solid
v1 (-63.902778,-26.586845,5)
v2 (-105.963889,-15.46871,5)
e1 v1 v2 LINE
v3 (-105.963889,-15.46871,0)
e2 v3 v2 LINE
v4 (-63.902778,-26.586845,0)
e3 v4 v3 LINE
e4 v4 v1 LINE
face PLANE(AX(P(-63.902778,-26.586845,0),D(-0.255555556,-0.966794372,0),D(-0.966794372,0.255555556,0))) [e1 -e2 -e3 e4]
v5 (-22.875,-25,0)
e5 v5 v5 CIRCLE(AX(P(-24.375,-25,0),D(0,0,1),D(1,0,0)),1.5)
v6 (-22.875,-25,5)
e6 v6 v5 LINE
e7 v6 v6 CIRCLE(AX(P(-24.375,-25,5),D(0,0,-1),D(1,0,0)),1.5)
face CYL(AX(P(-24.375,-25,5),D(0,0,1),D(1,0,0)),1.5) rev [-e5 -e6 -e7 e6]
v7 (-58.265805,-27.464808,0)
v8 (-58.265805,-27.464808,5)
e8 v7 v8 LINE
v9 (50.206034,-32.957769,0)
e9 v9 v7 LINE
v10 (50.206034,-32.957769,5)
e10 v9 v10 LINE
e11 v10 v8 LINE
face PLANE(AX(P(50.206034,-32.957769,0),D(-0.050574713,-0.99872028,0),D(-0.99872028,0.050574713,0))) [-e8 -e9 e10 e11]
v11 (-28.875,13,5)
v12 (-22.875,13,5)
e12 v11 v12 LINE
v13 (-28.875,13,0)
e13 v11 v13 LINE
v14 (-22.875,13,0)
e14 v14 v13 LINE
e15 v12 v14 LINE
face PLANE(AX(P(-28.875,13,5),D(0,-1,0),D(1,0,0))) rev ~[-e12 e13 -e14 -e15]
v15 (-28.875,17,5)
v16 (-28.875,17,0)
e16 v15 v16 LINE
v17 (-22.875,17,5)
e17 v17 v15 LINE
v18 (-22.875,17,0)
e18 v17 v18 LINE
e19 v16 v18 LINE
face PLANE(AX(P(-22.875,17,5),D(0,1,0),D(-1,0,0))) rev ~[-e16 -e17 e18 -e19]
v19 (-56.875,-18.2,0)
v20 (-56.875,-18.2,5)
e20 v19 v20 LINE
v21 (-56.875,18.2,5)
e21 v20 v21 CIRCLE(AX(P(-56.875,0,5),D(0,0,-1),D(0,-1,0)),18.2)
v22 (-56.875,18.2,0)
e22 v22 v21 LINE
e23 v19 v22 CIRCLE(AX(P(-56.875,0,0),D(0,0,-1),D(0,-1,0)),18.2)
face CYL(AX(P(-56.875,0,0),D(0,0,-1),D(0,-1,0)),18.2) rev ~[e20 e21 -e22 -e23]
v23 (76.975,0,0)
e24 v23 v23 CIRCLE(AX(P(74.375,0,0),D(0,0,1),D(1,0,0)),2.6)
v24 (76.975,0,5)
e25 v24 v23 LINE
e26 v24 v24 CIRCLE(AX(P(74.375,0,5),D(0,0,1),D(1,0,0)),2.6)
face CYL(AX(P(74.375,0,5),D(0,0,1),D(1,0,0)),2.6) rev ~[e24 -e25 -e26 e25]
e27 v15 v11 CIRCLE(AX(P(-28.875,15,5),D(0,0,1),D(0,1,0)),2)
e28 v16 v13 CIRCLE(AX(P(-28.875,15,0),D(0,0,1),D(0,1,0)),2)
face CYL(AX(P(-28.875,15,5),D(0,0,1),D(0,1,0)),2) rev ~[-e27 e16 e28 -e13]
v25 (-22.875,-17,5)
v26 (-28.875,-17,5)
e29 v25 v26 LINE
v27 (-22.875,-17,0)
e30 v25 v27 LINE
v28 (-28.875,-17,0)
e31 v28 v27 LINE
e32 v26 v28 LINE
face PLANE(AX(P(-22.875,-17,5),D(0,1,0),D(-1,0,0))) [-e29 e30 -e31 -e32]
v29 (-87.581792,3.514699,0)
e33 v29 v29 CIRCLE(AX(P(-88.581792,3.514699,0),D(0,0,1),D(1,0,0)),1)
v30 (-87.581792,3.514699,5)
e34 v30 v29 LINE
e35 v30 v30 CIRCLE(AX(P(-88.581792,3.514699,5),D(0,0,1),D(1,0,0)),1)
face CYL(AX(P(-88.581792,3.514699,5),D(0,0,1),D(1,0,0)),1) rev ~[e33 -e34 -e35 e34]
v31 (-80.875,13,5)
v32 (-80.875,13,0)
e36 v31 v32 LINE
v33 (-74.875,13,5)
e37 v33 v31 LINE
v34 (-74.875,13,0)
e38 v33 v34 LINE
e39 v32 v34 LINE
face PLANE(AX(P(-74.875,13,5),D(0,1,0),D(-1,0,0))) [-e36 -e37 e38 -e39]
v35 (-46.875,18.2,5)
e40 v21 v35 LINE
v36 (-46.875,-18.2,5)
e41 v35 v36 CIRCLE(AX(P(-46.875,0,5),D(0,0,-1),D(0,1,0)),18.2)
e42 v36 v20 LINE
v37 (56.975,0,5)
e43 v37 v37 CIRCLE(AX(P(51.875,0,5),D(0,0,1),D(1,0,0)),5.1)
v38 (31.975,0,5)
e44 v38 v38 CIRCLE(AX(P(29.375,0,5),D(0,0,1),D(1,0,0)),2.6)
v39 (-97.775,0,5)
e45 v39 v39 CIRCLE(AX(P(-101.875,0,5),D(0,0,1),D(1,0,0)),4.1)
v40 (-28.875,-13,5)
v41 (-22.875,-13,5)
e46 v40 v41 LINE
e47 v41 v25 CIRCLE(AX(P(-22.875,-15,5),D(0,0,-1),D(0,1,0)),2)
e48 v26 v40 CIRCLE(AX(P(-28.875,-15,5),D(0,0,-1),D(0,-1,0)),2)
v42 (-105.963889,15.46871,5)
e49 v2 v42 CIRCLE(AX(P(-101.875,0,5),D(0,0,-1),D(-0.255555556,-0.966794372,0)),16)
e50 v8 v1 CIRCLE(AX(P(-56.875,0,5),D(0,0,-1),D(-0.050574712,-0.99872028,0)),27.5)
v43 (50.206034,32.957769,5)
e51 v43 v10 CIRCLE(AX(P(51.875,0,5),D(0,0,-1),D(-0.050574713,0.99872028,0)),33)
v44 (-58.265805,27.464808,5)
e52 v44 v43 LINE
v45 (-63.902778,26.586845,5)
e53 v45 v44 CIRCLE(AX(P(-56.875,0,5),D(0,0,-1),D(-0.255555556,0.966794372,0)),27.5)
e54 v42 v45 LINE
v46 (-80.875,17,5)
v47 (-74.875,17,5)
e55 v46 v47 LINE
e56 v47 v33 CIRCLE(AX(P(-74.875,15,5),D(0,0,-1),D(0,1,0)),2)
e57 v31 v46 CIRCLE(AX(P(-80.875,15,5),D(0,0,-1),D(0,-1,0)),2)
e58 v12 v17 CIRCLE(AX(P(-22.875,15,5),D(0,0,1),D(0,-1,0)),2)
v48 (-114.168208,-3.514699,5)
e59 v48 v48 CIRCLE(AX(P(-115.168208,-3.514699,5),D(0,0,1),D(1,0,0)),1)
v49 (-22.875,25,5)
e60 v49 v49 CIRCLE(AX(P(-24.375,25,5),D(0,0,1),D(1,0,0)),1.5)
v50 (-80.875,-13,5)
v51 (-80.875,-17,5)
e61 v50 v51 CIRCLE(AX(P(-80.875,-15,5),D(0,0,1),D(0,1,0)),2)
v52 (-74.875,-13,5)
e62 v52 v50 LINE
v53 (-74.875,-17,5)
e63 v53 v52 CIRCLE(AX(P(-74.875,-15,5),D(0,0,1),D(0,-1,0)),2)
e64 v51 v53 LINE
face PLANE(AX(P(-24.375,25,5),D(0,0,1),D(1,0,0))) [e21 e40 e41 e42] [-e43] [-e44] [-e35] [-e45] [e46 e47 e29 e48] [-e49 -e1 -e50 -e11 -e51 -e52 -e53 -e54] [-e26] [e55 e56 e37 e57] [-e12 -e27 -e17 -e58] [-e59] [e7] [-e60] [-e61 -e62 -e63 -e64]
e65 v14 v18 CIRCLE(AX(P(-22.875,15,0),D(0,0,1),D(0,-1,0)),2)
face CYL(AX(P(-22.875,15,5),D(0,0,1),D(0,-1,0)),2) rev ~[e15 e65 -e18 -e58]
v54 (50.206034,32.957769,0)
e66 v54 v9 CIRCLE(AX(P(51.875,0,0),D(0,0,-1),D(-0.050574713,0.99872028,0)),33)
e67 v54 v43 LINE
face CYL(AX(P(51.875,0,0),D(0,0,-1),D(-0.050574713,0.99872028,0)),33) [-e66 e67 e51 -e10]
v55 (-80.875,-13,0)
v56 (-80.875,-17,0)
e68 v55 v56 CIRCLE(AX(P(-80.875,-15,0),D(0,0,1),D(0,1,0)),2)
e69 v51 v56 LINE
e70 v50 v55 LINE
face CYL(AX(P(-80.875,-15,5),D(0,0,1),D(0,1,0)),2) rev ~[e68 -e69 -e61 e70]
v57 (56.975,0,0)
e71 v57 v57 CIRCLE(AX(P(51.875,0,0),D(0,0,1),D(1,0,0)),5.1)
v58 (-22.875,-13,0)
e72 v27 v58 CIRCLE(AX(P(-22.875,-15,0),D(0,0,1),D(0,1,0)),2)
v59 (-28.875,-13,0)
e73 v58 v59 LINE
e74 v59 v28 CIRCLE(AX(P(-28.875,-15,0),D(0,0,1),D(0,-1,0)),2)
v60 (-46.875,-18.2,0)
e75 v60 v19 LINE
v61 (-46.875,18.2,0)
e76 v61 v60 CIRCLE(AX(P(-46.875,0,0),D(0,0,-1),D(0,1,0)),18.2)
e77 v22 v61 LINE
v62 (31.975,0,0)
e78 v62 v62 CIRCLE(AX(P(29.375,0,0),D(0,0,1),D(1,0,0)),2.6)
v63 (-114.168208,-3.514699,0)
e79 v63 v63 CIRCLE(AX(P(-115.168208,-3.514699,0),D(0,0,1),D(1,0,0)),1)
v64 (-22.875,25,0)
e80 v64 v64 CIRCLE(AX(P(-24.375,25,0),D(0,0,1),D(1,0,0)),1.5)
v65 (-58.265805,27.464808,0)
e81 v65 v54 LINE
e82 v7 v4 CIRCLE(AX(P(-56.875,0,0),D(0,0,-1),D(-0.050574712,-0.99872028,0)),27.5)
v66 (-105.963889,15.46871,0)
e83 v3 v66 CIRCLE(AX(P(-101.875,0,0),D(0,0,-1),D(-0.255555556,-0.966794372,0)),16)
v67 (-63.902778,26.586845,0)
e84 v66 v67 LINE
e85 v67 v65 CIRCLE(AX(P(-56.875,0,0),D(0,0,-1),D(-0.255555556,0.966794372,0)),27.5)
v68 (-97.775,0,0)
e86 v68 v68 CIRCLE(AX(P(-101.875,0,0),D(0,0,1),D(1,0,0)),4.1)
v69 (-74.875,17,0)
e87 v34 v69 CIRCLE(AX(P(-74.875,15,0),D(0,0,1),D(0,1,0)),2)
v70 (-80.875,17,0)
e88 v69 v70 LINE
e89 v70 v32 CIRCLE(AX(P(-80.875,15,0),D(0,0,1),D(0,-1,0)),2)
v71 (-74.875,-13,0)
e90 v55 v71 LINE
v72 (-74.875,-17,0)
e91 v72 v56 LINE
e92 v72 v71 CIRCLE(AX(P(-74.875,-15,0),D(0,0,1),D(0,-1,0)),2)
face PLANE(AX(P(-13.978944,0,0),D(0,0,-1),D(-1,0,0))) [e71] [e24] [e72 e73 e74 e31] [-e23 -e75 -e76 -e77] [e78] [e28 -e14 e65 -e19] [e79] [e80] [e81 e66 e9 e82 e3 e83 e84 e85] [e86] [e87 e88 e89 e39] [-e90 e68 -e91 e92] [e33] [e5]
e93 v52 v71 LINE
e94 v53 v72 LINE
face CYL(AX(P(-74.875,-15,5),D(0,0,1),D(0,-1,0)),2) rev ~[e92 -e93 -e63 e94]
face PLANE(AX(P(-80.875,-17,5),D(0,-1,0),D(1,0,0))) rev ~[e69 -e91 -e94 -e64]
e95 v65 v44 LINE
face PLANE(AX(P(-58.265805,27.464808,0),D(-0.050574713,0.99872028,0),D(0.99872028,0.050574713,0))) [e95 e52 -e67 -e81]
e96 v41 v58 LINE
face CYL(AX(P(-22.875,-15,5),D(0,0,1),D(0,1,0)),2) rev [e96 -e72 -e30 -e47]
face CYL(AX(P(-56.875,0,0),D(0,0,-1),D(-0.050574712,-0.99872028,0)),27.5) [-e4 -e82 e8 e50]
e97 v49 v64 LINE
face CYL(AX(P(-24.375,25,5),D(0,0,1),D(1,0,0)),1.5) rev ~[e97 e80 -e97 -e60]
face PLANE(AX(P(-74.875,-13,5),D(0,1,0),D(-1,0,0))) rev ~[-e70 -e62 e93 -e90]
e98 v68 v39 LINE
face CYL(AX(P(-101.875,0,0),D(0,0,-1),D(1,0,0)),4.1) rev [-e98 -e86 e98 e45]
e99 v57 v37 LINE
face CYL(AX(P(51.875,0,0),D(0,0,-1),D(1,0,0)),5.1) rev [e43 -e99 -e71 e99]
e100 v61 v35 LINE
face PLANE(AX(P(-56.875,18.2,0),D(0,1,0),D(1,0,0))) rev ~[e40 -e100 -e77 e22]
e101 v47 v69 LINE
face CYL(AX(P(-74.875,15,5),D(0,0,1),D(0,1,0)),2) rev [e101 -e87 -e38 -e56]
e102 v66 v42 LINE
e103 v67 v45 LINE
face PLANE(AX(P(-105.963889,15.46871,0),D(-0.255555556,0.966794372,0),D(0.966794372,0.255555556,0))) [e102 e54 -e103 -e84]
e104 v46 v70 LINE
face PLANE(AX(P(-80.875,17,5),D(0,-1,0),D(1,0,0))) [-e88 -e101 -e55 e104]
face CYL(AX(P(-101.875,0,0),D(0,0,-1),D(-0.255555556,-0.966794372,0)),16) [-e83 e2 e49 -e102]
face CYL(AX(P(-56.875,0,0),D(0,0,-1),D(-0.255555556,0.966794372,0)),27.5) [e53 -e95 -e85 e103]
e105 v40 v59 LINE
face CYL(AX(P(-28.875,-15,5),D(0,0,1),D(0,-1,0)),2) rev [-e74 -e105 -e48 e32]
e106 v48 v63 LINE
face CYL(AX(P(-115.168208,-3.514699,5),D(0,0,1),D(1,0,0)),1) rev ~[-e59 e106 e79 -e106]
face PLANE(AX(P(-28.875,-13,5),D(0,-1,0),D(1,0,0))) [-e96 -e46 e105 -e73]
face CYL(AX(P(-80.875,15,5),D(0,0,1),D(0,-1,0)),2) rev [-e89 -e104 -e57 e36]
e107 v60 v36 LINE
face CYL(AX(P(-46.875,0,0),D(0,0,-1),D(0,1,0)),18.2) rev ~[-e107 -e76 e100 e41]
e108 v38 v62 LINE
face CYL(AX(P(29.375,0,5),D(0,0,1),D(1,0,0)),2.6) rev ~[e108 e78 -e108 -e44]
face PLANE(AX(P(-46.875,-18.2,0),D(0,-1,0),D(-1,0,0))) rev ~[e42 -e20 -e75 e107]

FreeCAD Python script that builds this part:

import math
import FreeCAD as App
import Part
import Sketcher
from FreeCAD import Vector
Q = App.Units.Quantity


def add_polygon(sketch, points):
    """Adds a closed chain of lines whose ends are joined by coincident constraints."""
    first, n = sketch.GeometryCount, len(points)
    for a, b in zip(points, points[1:] + points[:1]):
        sketch.addGeometry(Part.LineSegment(App.Vector(*a, 0), App.Vector(*b, 0)), False)
    for i in range(n):
        sketch.addConstraint(Sketcher.Constraint("Coincident", first + i, 2, first + (i + 1) % n, 1))

doc = App.newDocument("Part")
body = doc.addObject("PartDesign::Body", "Body")

sketch1 = body.newObject("Sketcher::SketchObject", "Sketch")
sketch1.AttachmentSupport = (doc.getObject("XY_Plane"), [""])
sketch1.MapMode = "FlatFace"
sketch1.addGeometry([
    Part.LineSegment(Vector(50.2, 33, 0), Vector(-58.3, 27.5, 0)),
    Part.ArcOfCircle(Part.Circle(Vector(-56.9, 0, 0), Vector(0, 0, 1), 27.5), math.radians(92.9), math.radians(104.81)),
    Part.LineSegment(Vector(-63.9, 26.6, 0), Vector(-106, 15.5, 0)),
    Part.ArcOfCircle(Part.Circle(Vector(-101.9, 0, 0), Vector(0, 0, 1), 16), math.radians(105), math.radians(255)),
    Part.LineSegment(Vector(-106, -15.5, 0), Vector(-63.9, -26.6, 0)),
    Part.ArcOfCircle(Part.Circle(Vector(-56.9, 0, 0), Vector(0, 0, 1), 27.5), math.radians(-104.81), math.radians(-92.9)),
    Part.LineSegment(Vector(-58.3, -27.5, 0), Vector(50.2, -33, 0)),
    Part.ArcOfCircle(Part.Circle(Vector(51.9, 0, 0), Vector(0, 0, 1), 33), math.radians(-93), math.radians(93)),
    Part.Circle(Vector(51.9, 0, 0), Vector(0, 0, 1), 5.1),
    Part.LineSegment(Vector(-46.9, -18.2, 0), Vector(-56.9, -18.2, 0)),
    Part.ArcOfCircle(Part.Circle(Vector(-56.9, 0, 0), Vector(0, 0, 1), 18.2), math.radians(90), math.radians(270)),
    Part.LineSegment(Vector(-56.9, 18.2, 0), Vector(-46.9, 18.2, 0)),
    Part.ArcOfCircle(Part.Circle(Vector(-46.9, 0, 0), Vector(0, 0, 1), 18.2), math.radians(-90), math.radians(90)),
    Part.Circle(Vector(-101.9, 0, 0), Vector(0, 0, 1), 4.1),
], False)
sketch1.addConstraint([
    Sketcher.Constraint("Tangent", 0, 2, 1, 1),
    Sketcher.Constraint("Tangent", 1, 2, 2, 1),
    Sketcher.Constraint("Tangent", 2, 2, 3, 1),
    Sketcher.Constraint("Tangent", 3, 2, 4, 1),
    Sketcher.Constraint("Tangent", 4, 2, 5, 1),
    Sketcher.Constraint("Tangent", 5, 2, 6, 1),
    Sketcher.Constraint("Tangent", 6, 2, 7, 1),
    Sketcher.Constraint("Tangent", 7, 2, 0, 1),
    Sketcher.Constraint("Tangent", 9, 2, 10, 2),
    Sketcher.Constraint("Tangent", 10, 1, 11, 1),
    Sketcher.Constraint("Tangent", 11, 2, 12, 2),
    Sketcher.Constraint("Tangent", 12, 1, 9, 1),
    Sketcher.Constraint("Horizontal", 9),
    Sketcher.Constraint("Horizontal", 11),
    Sketcher.Constraint("Coincident", 5, 3, 1, 3),
    Sketcher.Constraint("Coincident", 8, 3, 7, 3),
    Sketcher.Constraint("Coincident", 10, 3, 1, 3),
    Sketcher.Constraint("Coincident", 13, 3, 3, 3),
    Sketcher.Constraint("Equal", 1, 5),
    Sketcher.Constraint("Symmetric", 2, 2, 3, 2, -1),
    Sketcher.Constraint("PointOnObject", 7, 3, -1),
    Sketcher.Constraint("Radius", 3, Q("16 mm")),
    Sketcher.Constraint("Radius", 7, Q("33 mm")),
    Sketcher.Constraint("Diameter", 8, Q("10.2 mm")),
    Sketcher.Constraint("Diameter", 13, Q("8.2 mm")),
    Sketcher.Constraint("Radius", 1, Q("27.5 mm")),
    Sketcher.Constraint("Radius", 10, Q("18.2 mm")),
    Sketcher.Constraint("DistanceX", 9, 2, 9, 1, Q("10 mm")),
    Sketcher.Constraint("DistanceX", 3, 3, 1, 3, Q("45 mm")),
    Sketcher.Constraint("DistanceX", 1, 3, 7, 3, Q("108.75 mm")),
    Sketcher.Constraint("DistanceX", 1, 3, -1, 1, Q("56.875 mm")),
])
pad1 = body.newObject("PartDesign::Pad", "Pad")
pad1.Profile = sketch1
pad1.Length = 5

sketch2 = body.newObject("Sketcher::SketchObject", "Sketch001")
sketch2.AttachmentSupport = (doc.getObject("XY_Plane"), [""])
sketch2.MapMode = "FlatFace"
sketch2.AttachmentOffset = App.Placement(Vector(0, 0, 5), App.Rotation())
sketch2.addGeometry([
    Part.Circle(Vector(29.4, 0, 0), Vector(0, 0, 1), 2.6),
    Part.Circle(Vector(74.4, 0, 0), Vector(0, 0, 1), 2.6),
], False)
sketch2.addConstraint([
    Sketcher.Constraint("Equal", 0, 1),
    Sketcher.Constraint("PointOnObject", 0, 3, -1),
    Sketcher.Constraint("PointOnObject", 1, 3, -1),
    Sketcher.Constraint("Diameter", 0, Q("5.2 mm")),
    Sketcher.Constraint("DistanceX", 0, 3, 1, 3, Q("45 mm")),
    Sketcher.Constraint("DistanceX", -1, 1, 0, 3, Q("29.375 mm")),
])
pocket1 = body.newObject("PartDesign::Pocket", "Pocket")
pocket1.Profile = sketch2
pocket1.Length = 7

sketch3 = body.newObject("Sketcher::SketchObject", "Sketch002")
sketch3.AttachmentSupport = (doc.getObject("XY_Plane"), [""])
sketch3.MapMode = "FlatFace"
sketch3.AttachmentOffset = App.Placement(Vector(0, 0, 5), App.Rotation())
add_polygon(sketch3, [(-29, 25), (-26.7, 21), (-22.1, 21), (-19.8, 25), (-22.1, 29), (-26.7, 29)])
add_polygon(sketch3, [(-27.2, 25), (-25.8, 27.4), (-23, 27.4), (-21.6, 25), (-23, 22.6), (-25.8, 22.6)])
sketch3.addConstraint([
    Sketcher.Constraint("Horizontal", 1),
    Sketcher.Constraint("Horizontal", 4),
    Sketcher.Constraint("Horizontal", 7),
    Sketcher.Constraint("Horizontal", 10),
    Sketcher.Constraint("Parallel", 0, 3),
    Sketcher.Constraint("Parallel", 2, 5),
    Sketcher.Constraint("Parallel", 5, 6),
    Sketcher.Constraint("Parallel", 3, 8),
    Sketcher.Constraint("Parallel", 6, 9),
    Sketcher.Constraint("Parallel", 8, 11),
    Sketcher.Constraint("Horizontal", 2, 2, 5, 2),
    Sketcher.Constraint("Horizontal", 5, 2, 8, 2),
    Sketcher.Constraint("Horizontal", 8, 2, 11, 2),
    Sketcher.Constraint("Vertical", 1, 2, 3, 2),
    Sketcher.Constraint("Vertical", 0, 2, 4, 2),
    Sketcher.Constraint("Vertical", 7, 2, 9, 2),
    Sketcher.Constraint("Angle", 0, Q("-60 deg")),
    Sketcher.Constraint("DistanceX", 7, 1, 7, 2, Q("2.8 mm")),
    Sketcher.Constraint("DistanceY", -1, 1, 0, 2, Q("21 mm")),
    Sketcher.Constraint("DistanceY", -1, 1, 2, 2, Q("25 mm")),
    Sketcher.Constraint("Distance", 6, Q("2.8 mm")),
    Sketcher.Constraint("DistanceX", 6, 2, -1, 1, Q("25.775 mm")),
    Sketcher.Constraint("DistanceX", 0, 2, -1, 1, Q("26.684401 mm")),
    Sketcher.Constraint("DistanceX", 1, 2, -1, 1, Q("22.065599 mm")),
])
pad2 = body.newObject("PartDesign::Pad", "Pad001")
pad2.Profile = sketch3
pad2.Length = 8
pad2.Reversed = True

sketch4 = body.newObject("Sketcher::SketchObject", "Sketch003")
sketch4.AttachmentSupport = (doc.getObject("XY_Plane"), [""])
sketch4.MapMode = "FlatFace"
sketch4.AttachmentOffset = App.Placement(Vector(0, 0, 5), App.Rotation())
sketch4.addGeometry(Part.Circle(Vector(-24.4, 25, 0), Vector(0, 0, 1), 1.5), False)
sketch4.addConstraint([
    Sketcher.Constraint("Diameter", 0, Q("3 mm")),
    Sketcher.Constraint("DistanceY", -1, 1, 0, 3, Q("25 mm")),
    Sketcher.Constraint("DistanceX", 0, 3, -1, 1, Q("24.375 mm")),
])
pocket2 = body.newObject("PartDesign::Pocket", "Pocket001")
pocket2.Profile = sketch4
pocket2.Length = 7
doc.recompute()

mirrored = body.newObject("PartDesign::Mirrored", "Mirrored")
mirrored.Originals = [pocket2]
mirrored.MirrorPlane = (doc.getObject("XZ_Plane"), [""])
body.Tip = mirrored

sketch5 = body.newObject("Sketcher::SketchObject", "Sketch004")
sketch5.AttachmentSupport = (doc.getObject("XY_Plane"), [""])
sketch5.MapMode = "FlatFace"
sketch5.AttachmentOffset = App.Placement(Vector(0, 0, 5), App.Rotation())
sketch5.addGeometry([
    Part.LineSegment(Vector(-74.9, 17, 0), Vector(-80.9, 17, 0)),
    Part.ArcOfCircle(Part.Circle(Vector(-80.9, 15, 0), Vector(0, 0, 1), 2), math.radians(90), math.radians(270)),
    Part.LineSegment(Vector(-80.9, 13, 0), Vector(-74.9, 13, 0)),
    Part.ArcOfCircle(Part.Circle(Vector(-74.9, 15, 0), Vector(0, 0, 1), 2), math.radians(-90), math.radians(90)),
    Part.LineSegment(Vector(-22.9, 17, 0), Vector(-28.9, 17, 0)),
    Part.ArcOfCircle(Part.Circle(Vector(-28.9, 15, 0), Vector(0, 0, 1), 2), math.radians(90), math.radians(270)),
    Part.LineSegment(Vector(-28.9, 13, 0), Vector(-22.9, 13, 0)),
    Part.ArcOfCircle(Part.Circle(Vector(-22.9, 15, 0), Vector(0, 0, 1), 2), math.radians(-90), math.radians(90)),
    Part.LineSegment(Vector(-28.9, -17, 0), Vector(-22.9, -17, 0)),
    Part.ArcOfCircle(Part.Circle(Vector(-22.9, -15, 0), Vector(0, 0, 1), 2), math.radians(-90), math.radians(90)),
    Part.LineSegment(Vector(-22.9, -13, 0), Vector(-28.9, -13, 0)),
    Part.ArcOfCircle(Part.Circle(Vector(-28.9, -15, 0), Vector(0, 0, 1), 2), math.radians(90), math.radians(270)),
    Part.LineSegment(Vector(-80.9, -17, 0), Vector(-74.9, -17, 0)),
    Part.ArcOfCircle(Part.Circle(Vector(-74.9, -15, 0), Vector(0, 0, 1), 2), math.radians(-90), math.radians(90)),
    Part.LineSegment(Vector(-74.9, -13, 0), Vector(-80.9, -13, 0)),
    Part.ArcOfCircle(Part.Circle(Vector(-80.9, -15, 0), Vector(0, 0, 1), 2), math.radians(90), math.radians(270)),
], False)
sketch5.addConstraint([
    Sketcher.Constraint("Tangent", 0, 2, 1, 1),
    Sketcher.Constraint("Tangent", 1, 2, 2, 1),
    Sketcher.Constraint("Tangent", 2, 2, 3, 1),
    Sketcher.Constraint("Tangent", 3, 2, 0, 1),
    Sketcher.Constraint("Tangent", 4, 2, 5, 1),
    Sketcher.Constraint("Tangent", 5, 2, 6, 1),
    Sketcher.Constraint("Tangent", 6, 2, 7, 1),
    Sketcher.Constraint("Tangent", 7, 2, 4, 1),
    Sketcher.Constraint("Tangent", 8, 2, 9, 1),
    Sketcher.Constraint("Tangent", 9, 2, 10, 1),
    Sketcher.Constraint("Tangent", 10, 2, 11, 1),
    Sketcher.Constraint("Tangent", 11, 2, 8, 1),
    Sketcher.Constraint("Tangent", 12, 2, 13, 1),
    Sketcher.Constraint("Tangent", 13, 2, 14, 1),
    Sketcher.Constraint("Tangent", 14, 2, 15, 1),
    Sketcher.Constraint("Tangent", 15, 2, 12, 1),
    Sketcher.Constraint("Horizontal", 0),
    Sketcher.Constraint("Horizontal", 2),
    Sketcher.Constraint("Horizontal", 4),
    Sketcher.Constraint("Horizontal", 6),
    Sketcher.Constraint("Horizontal", 8),
    Sketcher.Constraint("Horizontal", 10),
    Sketcher.Constraint("Horizontal", 12),
    Sketcher.Constraint("Horizontal", 14),
    Sketcher.Constraint("Equal", 3, 5),
    Sketcher.Constraint("Equal", 7, 9),
    Sketcher.Constraint("Equal", 11, 13),
    Sketcher.Constraint("Symmetric", 7, 3, 9, 3, -1),
    Sketcher.Constraint("Symmetric", 3, 3, 13, 3, -1),
    Sketcher.Constraint("Horizontal", 3, 3, 5, 3),
    Sketcher.Constraint("Vertical", 5, 3, 11, 3),
    Sketcher.Constraint("Vertical", 1, 3, 15, 3),
    Sketcher.Constraint("Equal", 2, 4),
    Sketcher.Constraint("Radius", 1, Q("2 mm")),
    Sketcher.Constraint("DistanceX", 0, 2, 0, 1, Q("6 mm")),
    Sketcher.Constraint("DistanceY", -1, 1, 1, 3, Q("15 mm")),
    Sketcher.Constraint("DistanceX", 3, 3, 5, 3, Q("46 mm")),
    Sketcher.Constraint("DistanceX", 1, 3, -1, 1, Q("80.875 mm")),
])
pocket3 = body.newObject("PartDesign::Pocket", "Pocket002")
pocket3.Profile = sketch5
pocket3.Length = 10

sketch6 = body.newObject("Sketcher::SketchObject", "Sketch005")
sketch6.AttachmentSupport = (doc.getObject("XY_Plane"), [""])
sketch6.MapMode = "FlatFace"
sketch6.AttachmentOffset = App.Placement(Vector(0, 0, 5), App.Rotation())
sketch6.addGeometry([
    Part.Circle(Vector(-115.2, -3.5, 0), Vector(0, 0, 1), 1),
    Part.Circle(Vector(-88.6, 3.5, 0), Vector(0, 0, 1), 1),
], False)
sketch6.addConstraint([
    Sketcher.Constraint("Equal", 0, 1),
    Sketcher.Constraint("Diameter", 0, Q("2 mm")),
    Sketcher.Constraint("DistanceY", 0, 3, -1, 1, Q("3.514699 mm")),
    Sketcher.Constraint("DistanceY", -1, 1, 1, 3, Q("3.514699 mm")),
    Sketcher.Constraint("DistanceX", 0, 3, -1, 1, Q("115.168208 mm")),
    Sketcher.Constraint("DistanceX", 1, 3, -1, 1, Q("88.581792 mm")),
])
pocket4 = body.newObject("PartDesign::Pocket", "Pocket003")
pocket4.Profile = sketch6
pocket4.Length = 10

sketch7 = body.newObject("Sketcher::SketchObject", "Sketch006")
sketch7.AttachmentSupport = (doc.getObject("XY_Plane"), [""])
sketch7.MapMode = "FlatFace"
sketch7.AttachmentOffset = App.Placement(Vector(0, 0, -5), App.Rotation())
sketch7.addGeometry([
    Part.LineSegment(Vector(-106, 15, 0), Vector(-64, 27, 0)),
    Part.ArcOfCircle(Part.Circle(Vector(-57, 0, 0), Vector(0, 0, 1), 27), math.radians(92.9), math.radians(104.81)),
    Part.LineSegment(Vector(-58, 27, 0), Vector(50, 33, 0)),
    Part.ArcOfCircle(Part.Circle(Vector(52, 0, 0), Vector(0, 0, 1), 33), math.radians(-93), math.radians(93)),
    Part.LineSegment(Vector(50, -33, 0), Vector(-58, -27, 0)),
    Part.ArcOfCircle(Part.Circle(Vector(-57, 0, 0), Vector(0, 0, 1), 27), math.radians(-104.81), math.radians(-92.9)),
    Part.LineSegment(Vector(-64, -27, 0), Vector(-106, -15, 0)),
    Part.ArcOfCircle(Part.Circle(Vector(-102, 0, 0), Vector(0, 0, 1), 16), math.radians(105), math.radians(255)),
], False)
sketch7.addConstraint([
    Sketcher.Constraint("Tangent", 0, 2, 1, 2),
    Sketcher.Constraint("Tangent", 1, 1, 2, 1),
    Sketcher.Constraint("Tangent", 2, 2, 3, 2),
    Sketcher.Constraint("Tangent", 3, 1, 4, 1),
    Sketcher.Constraint("Tangent", 4, 2, 5, 2),
    Sketcher.Constraint("Tangent", 5, 1, 6, 1),
    Sketcher.Constraint("Tangent", 6, 2, 7, 2),
    Sketcher.Constraint("Tangent", 7, 1, 0, 1),
    Sketcher.Constraint("Coincident", 5, 3, 1, 3),
    Sketcher.Constraint("Equal", 1, 5),
    Sketcher.Constraint("Symmetric", 2, 2, 3, 1, -1),
    Sketcher.Constraint("PointOnObject", 7, 3, -1),
    Sketcher.Constraint("Radius", 3, Q("33 mm")),
    Sketcher.Constraint("Radius", 7, Q("16 mm")),
    Sketcher.Constraint("Radius", 1, Q("27.5 mm")),
    Sketcher.Constraint("DistanceX", 7, 3, 1, 3, Q("45 mm")),
    Sketcher.Constraint("DistanceX", 1, 3, 3, 3, Q("108.75 mm")),
    Sketcher.Constraint("DistanceX", 1, 3, -1, 1, Q("56.875 mm")),
])
pocket5 = body.newObject("PartDesign::Pocket", "Pocket004")
pocket5.Profile = sketch7
pocket5.Length = 5
pocket5.Reversed = True

doc.recompute()
